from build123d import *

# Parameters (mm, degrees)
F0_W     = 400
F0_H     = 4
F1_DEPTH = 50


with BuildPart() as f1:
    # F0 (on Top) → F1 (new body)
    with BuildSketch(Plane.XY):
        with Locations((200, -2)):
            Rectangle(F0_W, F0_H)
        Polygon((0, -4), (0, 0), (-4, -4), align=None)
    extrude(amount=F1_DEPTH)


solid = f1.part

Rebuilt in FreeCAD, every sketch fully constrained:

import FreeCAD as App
import Part
import Sketcher
from FreeCAD import Vector


def add_polygon(sketch, points):
    """Adds a closed chain of lines whose ends are joined by coincident constraints."""
    first, n = sketch.GeometryCount, len(points)
    for a, b in zip(points, points[1:] + points[:1]):
        sketch.addGeometry(Part.LineSegment(App.Vector(*a, 0), App.Vector(*b, 0)), False)
    for i in range(n):
        sketch.addConstraint(Sketcher.Constraint("Coincident", first + i, 2, first + (i + 1) % n, 1))

doc = App.newDocument("Part")
params = doc.addObject("Spreadsheet::Sheet", "Params")
for row, (alias, value) in enumerate([
    ("sketch1_width", "400 mm"),
    ("sketch1_width2", "404 mm"),
    ("sketch1_height", "4 mm"),
    ("pad1_length", "50 mm"),
], start=1):
    params.set(f"A{row}", alias)
    params.set(f"B{row}", "=" + value)
    params.setAlias(f"B{row}", alias)

body = doc.addObject("PartDesign::Body", "Body")

sketch1 = body.newObject("Sketcher::SketchObject", "Sketch")
sketch1.AttachmentSupport = (doc.getObject("XY_Plane"), [""])
sketch1.MapMode = "FlatFace"
add_polygon(sketch1, [(400, -4), (400, 0), (0, 0), (-4, -4)])
sketch1.addConstraint([
    Sketcher.Constraint("Vertical", 0),
    Sketcher.Constraint("Horizontal", 1),
    Sketcher.Constraint("Horizontal", 3),
    Sketcher.Constraint("Coincident", 1, 2, -1, 1),
    Sketcher.Constraint("DistanceX", 1, 2, 1, 1, 400.0),
    Sketcher.Constraint("DistanceX", 3, 1, 3, 2, 404.0),
    Sketcher.Constraint("DistanceY", 0, 1, 0, 2, 4.0),
])
sketch1.setExpression("Constraints[8]", "Params.sketch1_width")
sketch1.setExpression("Constraints[9]", "Params.sketch1_width2")
sketch1.setExpression("Constraints[10]", "Params.sketch1_height")
pad1 = body.newObject("PartDesign::Pad", "Pad")
pad1.Profile = sketch1
pad1.setExpression("Length", "Params.pad1_length")

doc.recompute()
